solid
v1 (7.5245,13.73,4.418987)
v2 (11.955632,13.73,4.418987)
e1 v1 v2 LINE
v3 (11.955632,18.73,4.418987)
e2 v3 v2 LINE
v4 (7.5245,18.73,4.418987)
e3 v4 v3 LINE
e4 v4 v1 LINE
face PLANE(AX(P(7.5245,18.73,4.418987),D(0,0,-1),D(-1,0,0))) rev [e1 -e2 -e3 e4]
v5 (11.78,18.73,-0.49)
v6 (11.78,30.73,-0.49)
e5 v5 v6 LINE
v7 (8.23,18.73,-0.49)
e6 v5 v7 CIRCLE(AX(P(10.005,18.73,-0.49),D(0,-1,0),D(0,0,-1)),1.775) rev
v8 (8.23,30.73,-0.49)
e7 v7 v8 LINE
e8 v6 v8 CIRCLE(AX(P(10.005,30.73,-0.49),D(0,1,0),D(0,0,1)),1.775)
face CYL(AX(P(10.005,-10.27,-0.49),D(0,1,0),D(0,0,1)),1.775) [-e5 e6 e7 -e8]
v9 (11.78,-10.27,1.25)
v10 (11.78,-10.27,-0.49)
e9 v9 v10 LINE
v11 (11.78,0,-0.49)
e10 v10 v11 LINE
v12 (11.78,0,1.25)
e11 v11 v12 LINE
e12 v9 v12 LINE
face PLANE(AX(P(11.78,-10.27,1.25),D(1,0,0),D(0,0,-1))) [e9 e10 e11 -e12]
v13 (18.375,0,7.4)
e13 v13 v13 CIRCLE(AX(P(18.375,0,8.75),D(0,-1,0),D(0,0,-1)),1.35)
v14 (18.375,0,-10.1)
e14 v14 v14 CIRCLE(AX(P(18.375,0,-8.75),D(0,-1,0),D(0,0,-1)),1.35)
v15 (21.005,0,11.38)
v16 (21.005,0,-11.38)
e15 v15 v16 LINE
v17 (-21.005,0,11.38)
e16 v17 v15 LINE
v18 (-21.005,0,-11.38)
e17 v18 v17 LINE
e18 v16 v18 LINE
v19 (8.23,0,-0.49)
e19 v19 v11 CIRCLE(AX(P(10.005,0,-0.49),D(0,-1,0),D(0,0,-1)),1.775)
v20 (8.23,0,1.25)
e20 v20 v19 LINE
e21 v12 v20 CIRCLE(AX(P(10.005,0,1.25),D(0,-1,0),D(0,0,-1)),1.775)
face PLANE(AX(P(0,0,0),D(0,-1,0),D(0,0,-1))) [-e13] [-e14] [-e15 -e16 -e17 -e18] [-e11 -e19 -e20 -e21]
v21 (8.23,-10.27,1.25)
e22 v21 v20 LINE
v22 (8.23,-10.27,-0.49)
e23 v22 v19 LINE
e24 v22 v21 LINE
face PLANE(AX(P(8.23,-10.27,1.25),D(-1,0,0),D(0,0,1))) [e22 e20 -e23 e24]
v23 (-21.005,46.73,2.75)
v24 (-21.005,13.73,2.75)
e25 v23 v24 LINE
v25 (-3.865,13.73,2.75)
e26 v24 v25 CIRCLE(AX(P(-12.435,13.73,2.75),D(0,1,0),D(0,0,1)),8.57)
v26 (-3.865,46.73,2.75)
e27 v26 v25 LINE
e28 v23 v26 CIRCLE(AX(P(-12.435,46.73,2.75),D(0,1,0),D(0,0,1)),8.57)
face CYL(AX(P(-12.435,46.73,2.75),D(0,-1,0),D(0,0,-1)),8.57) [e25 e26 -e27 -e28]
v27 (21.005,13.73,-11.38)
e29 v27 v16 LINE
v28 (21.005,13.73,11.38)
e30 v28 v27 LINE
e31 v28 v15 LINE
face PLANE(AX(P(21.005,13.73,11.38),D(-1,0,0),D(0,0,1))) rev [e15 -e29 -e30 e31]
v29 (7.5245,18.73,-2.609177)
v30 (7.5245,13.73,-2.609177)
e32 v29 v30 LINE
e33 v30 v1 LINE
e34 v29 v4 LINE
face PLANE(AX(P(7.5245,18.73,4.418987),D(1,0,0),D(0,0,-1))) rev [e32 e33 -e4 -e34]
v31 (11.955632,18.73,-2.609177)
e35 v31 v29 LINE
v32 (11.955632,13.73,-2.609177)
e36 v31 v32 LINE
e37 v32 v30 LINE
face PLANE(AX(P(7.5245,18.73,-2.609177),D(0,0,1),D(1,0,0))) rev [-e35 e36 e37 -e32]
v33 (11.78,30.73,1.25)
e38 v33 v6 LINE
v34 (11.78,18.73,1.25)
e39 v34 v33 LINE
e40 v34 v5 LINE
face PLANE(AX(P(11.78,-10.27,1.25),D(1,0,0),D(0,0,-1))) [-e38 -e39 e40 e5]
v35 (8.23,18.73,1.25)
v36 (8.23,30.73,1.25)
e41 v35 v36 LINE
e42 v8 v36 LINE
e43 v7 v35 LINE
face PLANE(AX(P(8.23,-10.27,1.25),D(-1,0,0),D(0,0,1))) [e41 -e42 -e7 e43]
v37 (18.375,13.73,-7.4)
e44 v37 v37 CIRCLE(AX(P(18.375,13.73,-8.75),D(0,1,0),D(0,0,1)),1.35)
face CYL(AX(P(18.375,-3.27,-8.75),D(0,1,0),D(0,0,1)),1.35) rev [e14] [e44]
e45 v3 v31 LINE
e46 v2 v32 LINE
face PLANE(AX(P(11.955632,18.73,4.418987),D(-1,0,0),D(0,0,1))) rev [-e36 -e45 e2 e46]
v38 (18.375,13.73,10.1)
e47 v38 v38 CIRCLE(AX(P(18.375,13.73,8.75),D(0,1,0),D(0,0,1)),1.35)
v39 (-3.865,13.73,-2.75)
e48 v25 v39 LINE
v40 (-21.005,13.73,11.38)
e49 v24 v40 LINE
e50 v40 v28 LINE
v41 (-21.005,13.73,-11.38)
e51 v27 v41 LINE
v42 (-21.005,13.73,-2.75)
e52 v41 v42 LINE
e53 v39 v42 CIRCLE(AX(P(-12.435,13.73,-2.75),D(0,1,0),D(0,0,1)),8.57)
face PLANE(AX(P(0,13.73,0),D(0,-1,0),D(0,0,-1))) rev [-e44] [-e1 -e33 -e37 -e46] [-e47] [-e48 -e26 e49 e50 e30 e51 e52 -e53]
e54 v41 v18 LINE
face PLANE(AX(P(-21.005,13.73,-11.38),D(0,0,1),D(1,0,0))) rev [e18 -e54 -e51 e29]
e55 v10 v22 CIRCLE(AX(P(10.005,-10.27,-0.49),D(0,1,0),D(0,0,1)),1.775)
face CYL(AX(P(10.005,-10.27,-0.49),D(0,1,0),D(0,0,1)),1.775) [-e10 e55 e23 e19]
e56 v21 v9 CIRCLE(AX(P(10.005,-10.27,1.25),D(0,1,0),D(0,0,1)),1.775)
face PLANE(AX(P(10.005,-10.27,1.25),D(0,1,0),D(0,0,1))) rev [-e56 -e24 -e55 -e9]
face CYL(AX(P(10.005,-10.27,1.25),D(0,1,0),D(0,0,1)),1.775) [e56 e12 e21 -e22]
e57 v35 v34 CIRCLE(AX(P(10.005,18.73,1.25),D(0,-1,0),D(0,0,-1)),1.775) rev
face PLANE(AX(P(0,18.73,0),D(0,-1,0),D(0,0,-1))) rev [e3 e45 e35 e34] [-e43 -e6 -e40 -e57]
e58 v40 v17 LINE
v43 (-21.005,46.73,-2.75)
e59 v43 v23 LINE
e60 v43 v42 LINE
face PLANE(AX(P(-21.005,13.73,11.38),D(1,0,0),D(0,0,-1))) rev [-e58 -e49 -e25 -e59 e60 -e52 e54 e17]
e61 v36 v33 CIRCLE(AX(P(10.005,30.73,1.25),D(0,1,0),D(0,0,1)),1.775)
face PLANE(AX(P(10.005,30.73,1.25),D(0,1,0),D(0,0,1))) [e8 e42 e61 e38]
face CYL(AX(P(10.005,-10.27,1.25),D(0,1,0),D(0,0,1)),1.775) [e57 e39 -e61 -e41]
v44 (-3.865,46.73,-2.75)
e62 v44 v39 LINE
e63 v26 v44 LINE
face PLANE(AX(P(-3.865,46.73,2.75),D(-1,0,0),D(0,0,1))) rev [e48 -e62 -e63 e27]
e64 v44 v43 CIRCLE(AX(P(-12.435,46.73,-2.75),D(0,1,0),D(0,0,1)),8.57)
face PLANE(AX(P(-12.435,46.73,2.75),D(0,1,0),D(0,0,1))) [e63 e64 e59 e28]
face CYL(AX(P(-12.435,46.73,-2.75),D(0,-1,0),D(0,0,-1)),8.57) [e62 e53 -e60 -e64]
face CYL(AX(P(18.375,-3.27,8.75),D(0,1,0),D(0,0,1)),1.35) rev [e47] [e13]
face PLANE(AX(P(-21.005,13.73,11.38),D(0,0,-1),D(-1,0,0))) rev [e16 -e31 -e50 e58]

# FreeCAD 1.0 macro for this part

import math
import FreeCAD as App
import Part
import Sketcher

doc = App.newDocument("Part")
body = doc.addObject("PartDesign::Body", "Body")

sketch1 = body.newObject("Sketcher::SketchObject", "Sketch")
sketch1.AttachmentSupport = (doc.getObject("XZ_Plane"), [""])
sketch1.MapMode = "FlatFace"
sketch1.addGeometry(Part.LineSegment(App.Vector(-21, -11, 0), App.Vector(-21, 11, 0)), False)
sketch1.addGeometry(Part.LineSegment(App.Vector(-21, 11, 0), App.Vector(21, 11, 0)), False)
sketch1.addGeometry(Part.LineSegment(App.Vector(21, 11, 0), App.Vector(21, -11, 0)), False)
sketch1.addGeometry(Part.LineSegment(App.Vector(21, -11, 0), App.Vector(-21, -11, 0)), False)
sketch1.addConstraint(Sketcher.Constraint("Coincident", 0, 2, 1, 1))
sketch1.addConstraint(Sketcher.Constraint("Coincident", 1, 2, 2, 1))
sketch1.addConstraint(Sketcher.Constraint("Coincident", 2, 2, 3, 1))
sketch1.addConstraint(Sketcher.Constraint("Coincident", 3, 2, 0, 1))
sketch1.addConstraint(Sketcher.Constraint("Vertical", 0))
sketch1.addConstraint(Sketcher.Constraint("Horizontal", 1))
sketch1.addConstraint(Sketcher.Constraint("Vertical", 2))
sketch1.addConstraint(Sketcher.Constraint("Horizontal", 3))
sketch1.addConstraint(Sketcher.Constraint("Symmetric", 0, 2, 2, 2, -1, 1))
sketch1.addConstraint(Sketcher.Constraint("DistanceX", 1, 1, 1, 2, 42.01))
sketch1.addConstraint(Sketcher.Constraint("DistanceY", 0, 1, 0, 2, 22.76))
pad1 = body.newObject("PartDesign::Pad", "Pad")
pad1.Profile = sketch1
pad1.Length = 13.73
pad1.Reversed = True

sketch2 = body.newObject("Sketcher::SketchObject", "Sketch001")
sketch2.AttachmentSupport = (doc.getObject("XZ_Plane"), [""])
sketch2.MapMode = "FlatFace"
sketch2.AttachmentOffset = App.Placement(App.Vector(0, 0, -13.73), App.Rotation())
sketch2.addGeometry(Part.LineSegment(App.Vector(-21, -3, 0), App.Vector(-21, 3, 0)), False)
sketch2.addGeometry(Part.ArcOfCircle(Part.Circle(App.Vector(-12, 3, 0), App.Vector(0, 0, 1), 9), math.radians(0), math.radians(180)), False)
sketch2.addGeometry(Part.LineSegment(App.Vector(-4, 3, 0), App.Vector(-4, -3, 0)), False)
sketch2.addGeometry(Part.ArcOfCircle(Part.Circle(App.Vector(-12, -3, 0), App.Vector(0, 0, 1), 9), math.radians(180), math.radians(360)), False)
sketch2.addConstraint(Sketcher.Constraint("Tangent", 0, 2, 1, 2))
sketch2.addConstraint(Sketcher.Constraint("Tangent", 1, 1, 2, 1))
sketch2.addConstraint(Sketcher.Constraint("Tangent", 2, 2, 3, 2))
sketch2.addConstraint(Sketcher.Constraint("Tangent", 3, 1, 0, 1))
sketch2.addConstraint(Sketcher.Constraint("Vertical", 0))
sketch2.addConstraint(Sketcher.Constraint("Vertical", 2))
sketch2.addConstraint(Sketcher.Constraint("Radius", 1, 8.57))
sketch2.addConstraint(Sketcher.Constraint("DistanceY", 0, 1, 0, 2, 5.5))
sketch2.addConstraint(Sketcher.Constraint("DistanceY", -1, 1, 1, 3, 2.75))
sketch2.addConstraint(Sketcher.Constraint("DistanceX", 1, 3, -1, 1, 12.435))
pad2 = body.newObject("PartDesign::Pad", "Pad001")
pad2.Profile = sketch2
pad2.Length = 33
pad2.Reversed = True

sketch3 = body.newObject("Sketcher::SketchObject", "Sketch002")
sketch3.AttachmentSupport = (doc.getObject("XZ_Plane"), [""])
sketch3.MapMode = "FlatFace"
sketch3.AttachmentOffset = App.Placement(App.Vector(0, 0, -13.73), App.Rotation())
sketch3.addGeometry(Part.LineSegment(App.Vector(8.2, -0.5, 0), App.Vector(8.2, 1.2, 0)), False)
sketch3.addGeometry(Part.ArcOfCircle(Part.Circle(App.Vector(10, 1.2, 0), App.Vector(0, 0, 1), 1.8), math.radians(0), math.radians(180)), False)
sketch3.addGeometry(Part.LineSegment(App.Vector(11.8, 1.2, 0), App.Vector(11.8, -0.5, 0)), False)
sketch3.addGeometry(Part.ArcOfCircle(Part.Circle(App.Vector(10, -0.5, 0), App.Vector(0, 0, 1), 1.8), math.radians(180), math.radians(360)), False)
sketch3.addConstraint(Sketcher.Constraint("Tangent", 0, 2, 1, 2))
sketch3.addConstraint(Sketcher.Constraint("Tangent", 1, 1, 2, 1))
sketch3.addConstraint(Sketcher.Constraint("Tangent", 2, 2, 3, 2))
sketch3.addConstraint(Sketcher.Constraint("Tangent", 3, 1, 0, 1))
sketch3.addConstraint(Sketcher.Constraint("Vertical", 0))
sketch3.addConstraint(Sketcher.Constraint("Vertical", 2))
sketch3.addConstraint(Sketcher.Constraint("Radius", 1, 1.775))
sketch3.addConstraint(Sketcher.Constraint("DistanceY", 0, 1, 0, 2, 1.74))
sketch3.addConstraint(Sketcher.Constraint("DistanceY", -1, 1, 1, 3, 1.25))
sketch3.addConstraint(Sketcher.Constraint("DistanceX", -1, 1, 0, 2, 8.23))
pad3 = body.newObject("PartDesign::Pad", "Pad002")
pad3.Profile = sketch3
pad3.Type = "TwoLengths"
pad3.Length = 17
pad3.Length2 = 24
pad3.Reversed = True

sketch4 = body.newObject("Sketcher::SketchObject", "Sketch003")
sketch4.AttachmentSupport = (doc.getObject("XZ_Plane"), [""])
sketch4.MapMode = "FlatFace"
sketch4.AttachmentOffset = App.Placement(App.Vector(0, 0, -13.73), App.Rotation())
sketch4.addGeometry(Part.Circle(App.Vector(18.4, -8.8, 0), App.Vector(0, 0, 1), 1.4), False)
sketch4.addGeometry(Part.Circle(App.Vector(18.4, 8.8, 0), App.Vector(0, 0, 1), 1.4), False)
sketch4.addConstraint(Sketcher.Constraint("Equal", 0, 1))
sketch4.addConstraint(Sketcher.Constraint("Symmetric", 0, 3, 1, 3, -1))
sketch4.addConstraint(Sketcher.Constraint("Diameter", 0, 2.7))
sketch4.addConstraint(Sketcher.Constraint("DistanceY", 0, 3, 1, 3, 17.5))
sketch4.addConstraint(Sketcher.Constraint("DistanceX", -1, 1, 0, 3, 18.375))
pocket1 = body.newObject("PartDesign::Pocket", "Pocket")
pocket1.Profile = sketch4
pocket1.Length = 17
pocket1.Reversed = True

sketch5 = body.newObject("Sketcher::SketchObject", "Sketch004")
sketch5.AttachmentSupport = (doc.getObject("XZ_Plane"), [""])
sketch5.MapMode = "FlatFace"
sketch5.AttachmentOffset = App.Placement(App.Vector(0, 0, -13.73), App.Rotation())
sketch5.addGeometry(Part.LineSegment(App.Vector(7.5, -2.6, 0), App.Vector(7.5, 4.4, 0)), False)
sketch5.addGeometry(Part.LineSegment(App.Vector(7.5, 4.4, 0), App.Vector(12, 4.4, 0)), False)
sketch5.addGeometry(Part.LineSegment(App.Vector(12, 4.4, 0), App.Vector(12, -2.6, 0)), False)
sketch5.addGeometry(Part.LineSegment(App.Vector(12, -2.6, 0), App.Vector(7.5, -2.6, 0)), False)
sketch5.addConstraint(Sketcher.Constraint("Coincident", 0, 2, 1, 1))
sketch5.addConstraint(Sketcher.Constraint("Coincident", 1, 2, 2, 1))
sketch5.addConstraint(Sketcher.Constraint("Coincident", 2, 2, 3, 1))
sketch5.addConstraint(Sketcher.Constraint("Coincident", 3, 2, 0, 1))
sketch5.addConstraint(Sketcher.Constraint("Vertical", 0))
sketch5.addConstraint(Sketcher.Constraint("Horizontal", 1))
sketch5.addConstraint(Sketcher.Constraint("Vertical", 2))
sketch5.addConstraint(Sketcher.Constraint("Horizontal", 3))
sketch5.addConstraint(Sketcher.Constraint("DistanceX", -1, 1, 0, 2, 7.5245))
sketch5.addConstraint(Sketcher.Constraint("DistanceX", 1, 1, 1, 2, 4.431132))
sketch5.addConstraint(Sketcher.Constraint("DistanceY", 0, 1, 0, 2, 7.028164))
sketch5.addConstraint(Sketcher.Constraint("DistanceY", -1, 1, 0, 2, 4.418987))
pad4 = body.newObject("PartDesign::Pad", "Pad003")
pad4.Profile = sketch5
pad4.Length = 5
pad4.Reversed = True

doc.recompute()
